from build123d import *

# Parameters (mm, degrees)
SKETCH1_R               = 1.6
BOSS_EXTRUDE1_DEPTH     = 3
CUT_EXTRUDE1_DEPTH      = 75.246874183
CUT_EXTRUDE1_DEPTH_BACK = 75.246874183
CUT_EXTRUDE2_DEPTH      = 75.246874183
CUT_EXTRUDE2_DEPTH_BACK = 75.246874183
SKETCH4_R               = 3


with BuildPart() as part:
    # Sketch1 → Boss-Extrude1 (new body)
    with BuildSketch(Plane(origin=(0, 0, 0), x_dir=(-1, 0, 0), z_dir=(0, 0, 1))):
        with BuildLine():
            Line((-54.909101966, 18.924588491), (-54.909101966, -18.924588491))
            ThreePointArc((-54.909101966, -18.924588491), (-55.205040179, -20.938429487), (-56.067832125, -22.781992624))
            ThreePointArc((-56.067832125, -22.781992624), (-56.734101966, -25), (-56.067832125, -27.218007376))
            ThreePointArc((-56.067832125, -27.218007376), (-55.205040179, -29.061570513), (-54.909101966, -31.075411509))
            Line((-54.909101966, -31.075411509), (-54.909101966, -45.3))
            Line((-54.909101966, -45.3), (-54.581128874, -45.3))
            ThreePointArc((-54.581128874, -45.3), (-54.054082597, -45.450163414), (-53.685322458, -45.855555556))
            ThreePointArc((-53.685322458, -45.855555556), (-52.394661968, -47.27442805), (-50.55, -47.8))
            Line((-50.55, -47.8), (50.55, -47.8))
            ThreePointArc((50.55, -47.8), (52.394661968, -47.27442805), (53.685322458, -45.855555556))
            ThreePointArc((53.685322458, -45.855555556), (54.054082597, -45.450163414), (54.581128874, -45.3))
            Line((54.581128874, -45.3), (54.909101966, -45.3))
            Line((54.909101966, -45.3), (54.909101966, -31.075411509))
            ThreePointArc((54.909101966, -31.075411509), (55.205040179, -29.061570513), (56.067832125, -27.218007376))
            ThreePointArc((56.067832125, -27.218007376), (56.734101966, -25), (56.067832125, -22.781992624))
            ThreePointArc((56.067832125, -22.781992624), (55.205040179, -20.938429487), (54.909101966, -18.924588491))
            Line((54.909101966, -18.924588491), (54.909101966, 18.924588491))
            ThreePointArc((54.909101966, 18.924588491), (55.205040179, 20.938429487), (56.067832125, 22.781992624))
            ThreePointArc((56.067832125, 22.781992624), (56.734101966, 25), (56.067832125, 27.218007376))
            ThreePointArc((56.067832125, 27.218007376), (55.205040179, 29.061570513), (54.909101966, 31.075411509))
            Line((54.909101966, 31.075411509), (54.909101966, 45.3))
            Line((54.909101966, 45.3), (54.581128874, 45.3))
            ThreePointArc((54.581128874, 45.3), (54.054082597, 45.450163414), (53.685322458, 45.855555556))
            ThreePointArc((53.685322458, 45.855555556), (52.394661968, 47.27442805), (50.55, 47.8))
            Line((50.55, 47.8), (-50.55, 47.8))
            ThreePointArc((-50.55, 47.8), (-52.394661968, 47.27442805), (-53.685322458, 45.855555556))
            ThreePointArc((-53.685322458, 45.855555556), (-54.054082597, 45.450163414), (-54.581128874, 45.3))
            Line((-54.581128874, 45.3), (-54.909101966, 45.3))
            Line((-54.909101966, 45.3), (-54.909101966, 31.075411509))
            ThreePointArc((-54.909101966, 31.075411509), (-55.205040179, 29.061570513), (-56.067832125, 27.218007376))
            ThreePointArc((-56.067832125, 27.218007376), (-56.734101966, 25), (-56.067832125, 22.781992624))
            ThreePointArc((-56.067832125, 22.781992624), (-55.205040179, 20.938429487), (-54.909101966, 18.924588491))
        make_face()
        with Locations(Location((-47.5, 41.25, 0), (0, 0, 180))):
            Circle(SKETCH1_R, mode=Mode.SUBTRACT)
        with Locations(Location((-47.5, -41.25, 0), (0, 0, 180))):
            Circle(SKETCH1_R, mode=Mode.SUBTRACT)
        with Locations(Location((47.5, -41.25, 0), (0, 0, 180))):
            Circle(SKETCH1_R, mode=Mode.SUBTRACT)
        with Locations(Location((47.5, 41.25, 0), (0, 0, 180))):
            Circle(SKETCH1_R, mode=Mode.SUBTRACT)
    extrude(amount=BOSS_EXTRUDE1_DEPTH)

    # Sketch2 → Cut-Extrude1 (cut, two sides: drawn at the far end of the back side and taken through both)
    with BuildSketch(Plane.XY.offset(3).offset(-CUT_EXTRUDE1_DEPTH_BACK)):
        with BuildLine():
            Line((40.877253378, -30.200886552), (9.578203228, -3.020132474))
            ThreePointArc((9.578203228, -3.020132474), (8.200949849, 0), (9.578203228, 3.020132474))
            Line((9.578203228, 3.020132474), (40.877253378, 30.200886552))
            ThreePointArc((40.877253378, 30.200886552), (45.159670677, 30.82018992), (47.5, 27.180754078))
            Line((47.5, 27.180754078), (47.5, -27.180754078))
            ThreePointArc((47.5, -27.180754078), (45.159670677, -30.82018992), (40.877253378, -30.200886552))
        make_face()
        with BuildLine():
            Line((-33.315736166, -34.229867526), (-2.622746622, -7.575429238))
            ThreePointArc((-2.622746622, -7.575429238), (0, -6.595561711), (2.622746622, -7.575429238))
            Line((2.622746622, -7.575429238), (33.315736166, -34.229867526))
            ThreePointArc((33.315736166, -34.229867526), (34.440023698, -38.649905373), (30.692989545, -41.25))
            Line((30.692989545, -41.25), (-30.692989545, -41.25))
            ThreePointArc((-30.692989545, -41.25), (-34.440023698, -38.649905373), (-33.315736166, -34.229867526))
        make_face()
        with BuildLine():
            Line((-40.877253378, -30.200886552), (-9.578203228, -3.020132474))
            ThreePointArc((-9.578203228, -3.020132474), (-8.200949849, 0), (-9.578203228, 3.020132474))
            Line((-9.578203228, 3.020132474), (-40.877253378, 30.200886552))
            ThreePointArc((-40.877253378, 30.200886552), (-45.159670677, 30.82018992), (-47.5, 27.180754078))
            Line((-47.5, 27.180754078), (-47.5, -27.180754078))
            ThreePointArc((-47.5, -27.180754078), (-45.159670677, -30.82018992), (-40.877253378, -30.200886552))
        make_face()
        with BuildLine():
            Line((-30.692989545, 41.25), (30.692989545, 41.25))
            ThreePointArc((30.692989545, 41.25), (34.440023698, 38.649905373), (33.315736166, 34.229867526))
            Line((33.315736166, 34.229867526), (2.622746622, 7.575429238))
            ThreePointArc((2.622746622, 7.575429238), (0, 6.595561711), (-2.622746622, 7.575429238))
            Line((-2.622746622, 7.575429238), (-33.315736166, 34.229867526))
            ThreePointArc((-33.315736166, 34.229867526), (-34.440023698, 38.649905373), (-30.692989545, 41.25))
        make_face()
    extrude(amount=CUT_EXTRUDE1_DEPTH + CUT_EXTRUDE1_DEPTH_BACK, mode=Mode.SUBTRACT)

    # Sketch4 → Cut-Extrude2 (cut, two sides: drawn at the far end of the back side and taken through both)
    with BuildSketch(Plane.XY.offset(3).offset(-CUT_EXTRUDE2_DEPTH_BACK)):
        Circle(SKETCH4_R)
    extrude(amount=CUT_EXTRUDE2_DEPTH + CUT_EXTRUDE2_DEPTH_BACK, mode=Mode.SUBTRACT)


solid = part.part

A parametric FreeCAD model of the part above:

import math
import FreeCAD as App
import Part
import Sketcher
from FreeCAD import Vector

doc = App.newDocument("Part")
body = doc.addObject("PartDesign::Body", "Body")

# Sketch on XY plane
sketch1 = doc.addObject("Sketcher::SketchObject", "Sketch")
body.addObject(sketch1)
sketch1.AttachmentSupport = (doc.XY_Plane, [""])
sketch1.MapMode = "FlatFace"
sketch1.addGeometry([
    Part.LineSegment(Vector(54.909102, -18.924588, 0), Vector(54.909102, 18.924588, 0)),  # 0
    Part.ArcOfCircle(Part.Circle(Vector(61.909102, 18.924588, 0), Vector(0, 0, 1), 7), math.radians(146.560392), math.radians(180)),  # 1
    Part.ArcOfCircle(Part.Circle(Vector(52.709102, 25, 0), Vector(0, 0, 1), 4.025), math.radians(-33.439608), math.radians(33.439608)),  # 2
    Part.ArcOfCircle(Part.Circle(Vector(61.909102, 31.075412, 0), Vector(0, 0, 1), 7), math.radians(180), math.radians(213.439608)),  # 3
    Part.LineSegment(Vector(54.909102, 31.075412, 0), Vector(54.909102, 45.3, 0)),  # 4
    Part.LineSegment(Vector(54.909102, 45.3, 0), Vector(54.581129, 45.3, 0)),  # 5
    Part.ArcOfCircle(Part.Circle(Vector(54.581129, 46.3, 0), Vector(0, 0, 1), 1), math.radians(-153.6122), math.radians(-90)),  # 6
    Part.ArcOfCircle(Part.Circle(Vector(50.55, 44.3, 0), Vector(0, 0, 1), 3.5), math.radians(26.3878), math.radians(90)),  # 7
    Part.LineSegment(Vector(50.55, 47.8, 0), Vector(-50.55, 47.8, 0)),  # 8
    Part.ArcOfCircle(Part.Circle(Vector(-50.55, 44.3, 0), Vector(0, 0, 1), 3.5), math.radians(90), math.radians(153.6122)),  # 9
    Part.ArcOfCircle(Part.Circle(Vector(-54.581129, 46.3, 0), Vector(0, 0, 1), 1), math.radians(-90), math.radians(-26.3878)),  # 10
    Part.LineSegment(Vector(-54.581129, 45.3, 0), Vector(-54.909102, 45.3, 0)),  # 11
    Part.LineSegment(Vector(-54.909102, 45.3, 0), Vector(-54.909102, 31.075412, 0)),  # 12
    Part.ArcOfCircle(Part.Circle(Vector(-61.909102, 31.075412, 0), Vector(0, 0, 1), 7), math.radians(-33.439608), math.radians(0)),  # 13
    Part.ArcOfCircle(Part.Circle(Vector(-52.709102, 25, 0), Vector(0, 0, 1), 4.025), math.radians(146.560392), math.radians(213.439608)),  # 14
    Part.ArcOfCircle(Part.Circle(Vector(-61.909102, 18.924588, 0), Vector(0, 0, 1), 7), math.radians(0), math.radians(33.439608)),  # 15
    Part.LineSegment(Vector(-54.909102, 18.924588, 0), Vector(-54.909102, -18.924588, 0)),  # 16
    Part.ArcOfCircle(Part.Circle(Vector(-61.909102, -18.924588, 0), Vector(0, 0, 1), 7), math.radians(-33.439608), math.radians(0)),  # 17
    Part.ArcOfCircle(Part.Circle(Vector(-52.709102, -25, 0), Vector(0, 0, 1), 4.025), math.radians(146.560392), math.radians(213.439608)),  # 18
    Part.ArcOfCircle(Part.Circle(Vector(-61.909102, -31.075412, 0), Vector(0, 0, 1), 7), math.radians(0), math.radians(33.439608)),  # 19
    Part.LineSegment(Vector(-54.909102, -31.075412, 0), Vector(-54.909102, -45.3, 0)),  # 20
    Part.LineSegment(Vector(-54.909102, -45.3, 0), Vector(-54.581129, -45.3, 0)),  # 21
    Part.ArcOfCircle(Part.Circle(Vector(-54.581129, -46.3, 0), Vector(0, 0, 1), 1), math.radians(26.3878), math.radians(90)),  # 22
    Part.ArcOfCircle(Part.Circle(Vector(-50.55, -44.3, 0), Vector(0, 0, 1), 3.5), math.radians(-153.6122), math.radians(-90)),  # 23
    Part.LineSegment(Vector(-50.55, -47.8, 0), Vector(50.55, -47.8, 0)),  # 24
    Part.ArcOfCircle(Part.Circle(Vector(50.55, -44.3, 0), Vector(0, 0, 1), 3.5), math.radians(-90), math.radians(-26.3878)),  # 25
    Part.ArcOfCircle(Part.Circle(Vector(54.581129, -46.3, 0), Vector(0, 0, 1), 1), math.radians(90), math.radians(153.6122)),  # 26
    Part.LineSegment(Vector(54.581129, -45.3, 0), Vector(54.909102, -45.3, 0)),  # 27
    Part.LineSegment(Vector(54.909102, -45.3, 0), Vector(54.909102, -31.075412, 0)),  # 28
    Part.ArcOfCircle(Part.Circle(Vector(61.909102, -31.075412, 0), Vector(0, 0, 1), 7), math.radians(146.560392), math.radians(180)),  # 29
    Part.ArcOfCircle(Part.Circle(Vector(52.709102, -25, 0), Vector(0, 0, 1), 4.025), math.radians(-33.439608), math.radians(33.439608)),  # 30
    Part.ArcOfCircle(Part.Circle(Vector(61.909102, -18.924588, 0), Vector(0, 0, 1), 7), math.radians(180), math.radians(213.439608)),  # 31
    Part.Circle(Vector(47.5, 41.25, 0), Vector(0, 0, 1), 1.6),  # 32
    Part.Circle(Vector(-47.5, 41.25, 0), Vector(0, 0, 1), 1.6),  # 33
    Part.Circle(Vector(47.5, -41.25, 0), Vector(0, 0, 1), 1.6),  # 34
    Part.Circle(Vector(-47.5, -41.25, 0), Vector(0, 0, 1), 1.6),  # 35
], False)
sketch1.addConstraint([
    Sketcher.Constraint("Tangent", 0, 2, 1, 2),
    Sketcher.Constraint("Tangent", 1, 1, 2, 1),
    Sketcher.Constraint("Tangent", 2, 2, 3, 2),
    Sketcher.Constraint("Tangent", 3, 1, 4, 1),
    Sketcher.Constraint("Coincident", 4, 2, 5, 1),
    Sketcher.Constraint("Tangent", 5, 2, 6, 2),
    Sketcher.Constraint("Tangent", 6, 1, 7, 1),
    Sketcher.Constraint("Tangent", 7, 2, 8, 1),
    Sketcher.Constraint("Tangent", 8, 2, 9, 1),
    Sketcher.Constraint("Tangent", 9, 2, 10, 2),
    Sketcher.Constraint("Tangent", 10, 1, 11, 1),
    Sketcher.Constraint("Coincident", 11, 2, 12, 1),
    Sketcher.Constraint("Tangent", 12, 2, 13, 2),
    Sketcher.Constraint("Tangent", 13, 1, 14, 1),
    Sketcher.Constraint("Tangent", 14, 2, 15, 2),
    Sketcher.Constraint("Tangent", 15, 1, 16, 1),
    Sketcher.Constraint("Tangent", 16, 2, 17, 2),
    Sketcher.Constraint("Tangent", 17, 1, 18, 1),
    Sketcher.Constraint("Tangent", 18, 2, 19, 2),
    Sketcher.Constraint("Tangent", 19, 1, 20, 1),
    Sketcher.Constraint("Coincident", 20, 2, 21, 1),
    Sketcher.Constraint("Tangent", 21, 2, 22, 2),
    Sketcher.Constraint("Tangent", 22, 1, 23, 1),
    Sketcher.Constraint("Tangent", 23, 2, 24, 1),
    Sketcher.Constraint("Tangent", 24, 2, 25, 1),
    Sketcher.Constraint("Tangent", 25, 2, 26, 2),
    Sketcher.Constraint("Tangent", 26, 1, 27, 1),
    Sketcher.Constraint("Coincident", 27, 2, 28, 1),
    Sketcher.Constraint("Tangent", 28, 2, 29, 2),
    Sketcher.Constraint("Tangent", 29, 1, 30, 1),
    Sketcher.Constraint("Tangent", 30, 2, 31, 2),
    Sketcher.Constraint("Tangent", 31, 1, 0, 1),
    Sketcher.Constraint("Vertical", 0),
    Sketcher.Constraint("Vertical", 4),
    Sketcher.Constraint("Horizontal", 5),
    Sketcher.Constraint("Horizontal", 8),
    Sketcher.Constraint("Horizontal", 11),
    Sketcher.Constraint("Vertical", 12),
    Sketcher.Constraint("Vertical", 16),
    Sketcher.Constraint("Vertical", 20),
    Sketcher.Constraint("Horizontal", 21),
    Sketcher.Constraint("Horizontal", 24),
    Sketcher.Constraint("Horizontal", 27),
    Sketcher.Constraint("Vertical", 28),
    Sketcher.Constraint("Equal", 1, 3),
    Sketcher.Constraint("Equal", 7, 9),
    Sketcher.Constraint("Equal", 6, 10),
    Sketcher.Constraint("Equal", 3, 13),
    Sketcher.Constraint("Equal", 2, 14),
    Sketcher.Constraint("Equal", 13, 15),
    Sketcher.Constraint("Equal", 15, 17),
    Sketcher.Constraint("Equal", 14, 18),
    Sketcher.Constraint("Equal", 17, 19),
    Sketcher.Constraint("Equal", 10, 22),
    Sketcher.Constraint("Equal", 9, 23),
    Sketcher.Constraint("Equal", 23, 25),
    Sketcher.Constraint("Equal", 22, 26),
    Sketcher.Constraint("Equal", 19, 29),
    Sketcher.Constraint("Equal", 18, 30),
    Sketcher.Constraint("Equal", 29, 31),
    Sketcher.Constraint("Equal", 32, 33),
    Sketcher.Constraint("Equal", 33, 34),
    Sketcher.Constraint("Equal", 34, 35),
    Sketcher.Constraint("Symmetric", 1, 3, 17, 3, -1, 1),
    Sketcher.Constraint("Symmetric", 3, 3, 19, 3, -1, 1),
    Sketcher.Constraint("Symmetric", 6, 3, 22, 3, -1, 1),
    Sketcher.Constraint("Symmetric", 9, 3, 25, 3, -1, 1),
    Sketcher.Constraint("Symmetric", 13, 3, 29, 3, -1, 1),
    Sketcher.Constraint("Symmetric", 33, 3, 34, 3, -1, 1),
    Sketcher.Constraint("Symmetric", 32, 3, 35, 3, -1, 1),
    Sketcher.Constraint("Symmetric", 6, 3, 10, 3, -2),
    Sketcher.Constraint("Symmetric", 3, 3, 13, 3, -2),
    Sketcher.Constraint("Symmetric", 32, 3, 33, 3, -2),
    Sketcher.Constraint("Horizontal", 2, 3, 14, 3),
    Sketcher.Constraint("Horizontal", 22, 3, 26, 3),
    Sketcher.Constraint("Horizontal", 18, 3, 30, 3),
    Sketcher.Constraint("Vertical", 1, 3, 3, 3),
    Sketcher.Constraint("Radius", 1, 7.0),
    Sketcher.Constraint("Radius", 6, 1.0),
    Sketcher.Constraint("Diameter", 32, 3.2),
    Sketcher.Constraint("Radius", 7, 3.5),
    Sketcher.Constraint("DistanceX", 8, 2, 8, 1, 101.1),
    Sketcher.Constraint("DistanceY", -1, 1, 2, 3, 25.0),
    Sketcher.Constraint("Radius", 2, 4.025),
    Sketcher.Constraint("DistanceY", 7, 3, 6, 3, 2.0),
    Sketcher.Constraint("DistanceY", -1, 1, 6, 3, 46.3),
    Sketcher.Constraint("DistanceX", -1, 1, 32, 3, 47.5),
    Sketcher.Constraint("DistanceX", 2, 3, 1, 3, 9.2),
    Sketcher.Constraint("DistanceY", -1, 1, 32, 3, 41.25),
    Sketcher.Constraint("DistanceX", -1, 1, 1, 3, 61.909102),
])
pad1 = doc.addObject("PartDesign::Pad", "Pad")
body.addObject(pad1)
pad1.Profile = sketch1
pad1.Length = 3

# Sketch on XY plane
sketch2 = doc.addObject("Sketcher::SketchObject", "Sketch001")
body.addObject(sketch2)
sketch2.AttachmentSupport = (doc.XY_Plane, [""])
sketch2.MapMode = "FlatFace"
sketch2.AttachmentOffset = App.Placement(Vector(0, 0, 3), App.Rotation())
sketch2.addGeometry([
    Part.LineSegment(Vector(9.578203, -3.020132, 0), Vector(40.877253, -30.200887, 0)),  # 0
    Part.ArcOfCircle(Part.Circle(Vector(43.5, -27.180754, 0), Vector(0, 0, 1), 4), math.radians(-130.971736), math.radians(0)),  # 1
    Part.LineSegment(Vector(47.5, -27.180754, 0), Vector(47.5, 27.180754, 0)),  # 2
    Part.ArcOfCircle(Part.Circle(Vector(43.5, 27.180754, 0), Vector(0, 0, 1), 4), math.radians(0), math.radians(130.971736)),  # 3
    Part.LineSegment(Vector(40.877253, 30.200887, 0), Vector(9.578203, 3.020132, 0)),  # 4
    Part.ArcOfCircle(Part.Circle(Vector(12.20095, 0, 0), Vector(0, 0, 1), 4), math.radians(130.971736), math.radians(229.028264)),  # 5
    Part.LineSegment(Vector(-2.622747, -7.575429, 0), Vector(-33.315736, -34.229868, 0)),  # 6
    Part.ArcOfCircle(Part.Circle(Vector(-30.69299, -37.25, 0), Vector(0, 0, 1), 4), math.radians(130.971736), math.radians(270)),  # 7
    Part.LineSegment(Vector(-30.69299, -41.25, 0), Vector(30.69299, -41.25, 0)),  # 8
    Part.ArcOfCircle(Part.Circle(Vector(30.69299, -37.25, 0), Vector(0, 0, 1), 4), math.radians(-90), math.radians(49.028264)),  # 9
    Part.LineSegment(Vector(33.315736, -34.229868, 0), Vector(2.622747, -7.575429, 0)),  # 10
    Part.ArcOfCircle(Part.Circle(Vector(0, -10.595562, 0), Vector(0, 0, 1), 4), math.radians(49.028264), math.radians(130.971736)),  # 11
    Part.LineSegment(Vector(-40.877253, -30.200887, 0), Vector(-9.578203, -3.020132, 0)),  # 12
    Part.ArcOfCircle(Part.Circle(Vector(-12.20095, 0, 0), Vector(0, 0, 1), 4), math.radians(-49.028264), math.radians(49.028264)),  # 13
    Part.LineSegment(Vector(-9.578203, 3.020132, 0), Vector(-40.877253, 30.200887, 0)),  # 14
    Part.ArcOfCircle(Part.Circle(Vector(-43.5, 27.180754, 0), Vector(0, 0, 1), 4), math.radians(49.028264), math.radians(180)),  # 15
    Part.LineSegment(Vector(-47.5, 27.180754, 0), Vector(-47.5, -27.180754, 0)),  # 16
    Part.ArcOfCircle(Part.Circle(Vector(-43.5, -27.180754, 0), Vector(0, 0, 1), 4), math.radians(180), math.radians(310.971736)),  # 17
    Part.LineSegment(Vector(30.69299, 41.25, 0), Vector(-30.69299, 41.25, 0)),  # 18
    Part.ArcOfCircle(Part.Circle(Vector(-30.69299, 37.25, 0), Vector(0, 0, 1), 4), math.radians(90), math.radians(229.028264)),  # 19
    Part.LineSegment(Vector(-33.315736, 34.229868, 0), Vector(-2.622747, 7.575429, 0)),  # 20
    Part.ArcOfCircle(Part.Circle(Vector(0, 10.595562, 0), Vector(0, 0, 1), 4), math.radians(-130.971736), math.radians(-49.028264)),  # 21
    Part.LineSegment(Vector(2.622747, 7.575429, 0), Vector(33.315736, 34.229868, 0)),  # 22
    Part.ArcOfCircle(Part.Circle(Vector(30.69299, 37.25, 0), Vector(0, 0, 1), 4), math.radians(-49.028264), math.radians(90)),  # 23
], False)
sketch2.addConstraint([
    Sketcher.Constraint("Tangent", 0, 2, 1, 1),
    Sketcher.Constraint("Tangent", 1, 2, 2, 1),
    Sketcher.Constraint("Tangent", 2, 2, 3, 1),
    Sketcher.Constraint("Tangent", 3, 2, 4, 1),
    Sketcher.Constraint("Tangent", 4, 2, 5, 1),
    Sketcher.Constraint("Tangent", 5, 2, 0, 1),
    Sketcher.Constraint("Tangent", 6, 2, 7, 1),
    Sketcher.Constraint("Tangent", 7, 2, 8, 1),
    Sketcher.Constraint("Tangent", 8, 2, 9, 1),
    Sketcher.Constraint("Tangent", 9, 2, 10, 1),
    Sketcher.Constraint("Tangent", 10, 2, 11, 1),
    Sketcher.Constraint("Tangent", 11, 2, 6, 1),
    Sketcher.Constraint("Tangent", 12, 2, 13, 1),
    Sketcher.Constraint("Tangent", 13, 2, 14, 1),
    Sketcher.Constraint("Tangent", 14, 2, 15, 1),
    Sketcher.Constraint("Tangent", 15, 2, 16, 1),
    Sketcher.Constraint("Tangent", 16, 2, 17, 1),
    Sketcher.Constraint("Tangent", 17, 2, 12, 1),
    Sketcher.Constraint("Tangent", 18, 2, 19, 1),
    Sketcher.Constraint("Tangent", 19, 2, 20, 1),
    Sketcher.Constraint("Tangent", 20, 2, 21, 1),
    Sketcher.Constraint("Tangent", 21, 2, 22, 1),
    Sketcher.Constraint("Tangent", 22, 2, 23, 1),
    Sketcher.Constraint("Tangent", 23, 2, 18, 1),
    Sketcher.Constraint("Vertical", 2),
    Sketcher.Constraint("Horizontal", 8),
    Sketcher.Constraint("Vertical", 16),
    Sketcher.Constraint("Horizontal", 18),
    Sketcher.Constraint("Equal", 1, 3),
    Sketcher.Constraint("Equal", 3, 5),
    Sketcher.Constraint("Equal", 5, 7),
    Sketcher.Constraint("Equal", 7, 9),
    Sketcher.Constraint("Equal", 9, 11),
    Sketcher.Constraint("Equal", 11, 13),
    Sketcher.Constraint("Equal", 13, 15),
    Sketcher.Constraint("Equal", 15, 17),
    Sketcher.Constraint("Equal", 17, 19),
    Sketcher.Constraint("Equal", 19, 21),
    Sketcher.Constraint("Equal", 21, 23),
    Sketcher.Constraint("Symmetric", 5, 3, 13, 3, -1, 1),
    Sketcher.Constraint("Symmetric", 1, 3, 15, 3, -1, 1),
    Sketcher.Constraint("Symmetric", 9, 3, 19, 3, -1, 1),
    Sketcher.Constraint("Symmetric", 11, 3, 21, 3, -1, 1),
    Sketcher.Constraint("Symmetric", 6, 2, 9, 2, -2),
    Sketcher.Constraint("Symmetric", 5, 2, 12, 2, -2),
    Sketcher.Constraint("Parallel", 4, 6),
    Sketcher.Constraint("Parallel", 0, 10),
    Sketcher.Constraint("Parallel", 12, 22),
    Sketcher.Constraint("Radius", 1, 4.0),
    Sketcher.Constraint("DistanceX", 15, 3, 3, 3, 87.0),
    Sketcher.Constraint("DistanceY", 7, 3, -1, 1, 37.25),
    Sketcher.Constraint("DistanceX", 8, 1, 8, 2, 61.385979),
    Sketcher.Constraint("DistanceY", 2, 1, 2, 2, 54.361508),
    Sketcher.Constraint("DistanceX", 13, 3, 5, 3, 24.4019),
])
pocket1 = doc.addObject("PartDesign::Pocket", "Pocket")
body.addObject(pocket1)
pocket1.Profile = sketch2
pocket1.Type = "ThroughAll"
pocket1.Midplane = True

# Sketch on XY plane
sketch3 = doc.addObject("Sketcher::SketchObject", "Sketch002")
body.addObject(sketch3)
sketch3.AttachmentSupport = (doc.XY_Plane, [""])
sketch3.MapMode = "FlatFace"
sketch3.AttachmentOffset = App.Placement(Vector(0, 0, 3), App.Rotation())
sketch3.addGeometry(Part.Circle(Vector(0, 0, 0), Vector(0, 0, 1), 3), False)
sketch3.addConstraint([
    Sketcher.Constraint("Coincident", 0, 3, -1, 1),
    Sketcher.Constraint("Diameter", 0, 6.0),
])
pocket2 = doc.addObject("PartDesign::Pocket", "Pocket001")
body.addObject(pocket2)
pocket2.Profile = sketch3
pocket2.Type = "ThroughAll"
pocket2.Midplane = True

doc.recompute()
